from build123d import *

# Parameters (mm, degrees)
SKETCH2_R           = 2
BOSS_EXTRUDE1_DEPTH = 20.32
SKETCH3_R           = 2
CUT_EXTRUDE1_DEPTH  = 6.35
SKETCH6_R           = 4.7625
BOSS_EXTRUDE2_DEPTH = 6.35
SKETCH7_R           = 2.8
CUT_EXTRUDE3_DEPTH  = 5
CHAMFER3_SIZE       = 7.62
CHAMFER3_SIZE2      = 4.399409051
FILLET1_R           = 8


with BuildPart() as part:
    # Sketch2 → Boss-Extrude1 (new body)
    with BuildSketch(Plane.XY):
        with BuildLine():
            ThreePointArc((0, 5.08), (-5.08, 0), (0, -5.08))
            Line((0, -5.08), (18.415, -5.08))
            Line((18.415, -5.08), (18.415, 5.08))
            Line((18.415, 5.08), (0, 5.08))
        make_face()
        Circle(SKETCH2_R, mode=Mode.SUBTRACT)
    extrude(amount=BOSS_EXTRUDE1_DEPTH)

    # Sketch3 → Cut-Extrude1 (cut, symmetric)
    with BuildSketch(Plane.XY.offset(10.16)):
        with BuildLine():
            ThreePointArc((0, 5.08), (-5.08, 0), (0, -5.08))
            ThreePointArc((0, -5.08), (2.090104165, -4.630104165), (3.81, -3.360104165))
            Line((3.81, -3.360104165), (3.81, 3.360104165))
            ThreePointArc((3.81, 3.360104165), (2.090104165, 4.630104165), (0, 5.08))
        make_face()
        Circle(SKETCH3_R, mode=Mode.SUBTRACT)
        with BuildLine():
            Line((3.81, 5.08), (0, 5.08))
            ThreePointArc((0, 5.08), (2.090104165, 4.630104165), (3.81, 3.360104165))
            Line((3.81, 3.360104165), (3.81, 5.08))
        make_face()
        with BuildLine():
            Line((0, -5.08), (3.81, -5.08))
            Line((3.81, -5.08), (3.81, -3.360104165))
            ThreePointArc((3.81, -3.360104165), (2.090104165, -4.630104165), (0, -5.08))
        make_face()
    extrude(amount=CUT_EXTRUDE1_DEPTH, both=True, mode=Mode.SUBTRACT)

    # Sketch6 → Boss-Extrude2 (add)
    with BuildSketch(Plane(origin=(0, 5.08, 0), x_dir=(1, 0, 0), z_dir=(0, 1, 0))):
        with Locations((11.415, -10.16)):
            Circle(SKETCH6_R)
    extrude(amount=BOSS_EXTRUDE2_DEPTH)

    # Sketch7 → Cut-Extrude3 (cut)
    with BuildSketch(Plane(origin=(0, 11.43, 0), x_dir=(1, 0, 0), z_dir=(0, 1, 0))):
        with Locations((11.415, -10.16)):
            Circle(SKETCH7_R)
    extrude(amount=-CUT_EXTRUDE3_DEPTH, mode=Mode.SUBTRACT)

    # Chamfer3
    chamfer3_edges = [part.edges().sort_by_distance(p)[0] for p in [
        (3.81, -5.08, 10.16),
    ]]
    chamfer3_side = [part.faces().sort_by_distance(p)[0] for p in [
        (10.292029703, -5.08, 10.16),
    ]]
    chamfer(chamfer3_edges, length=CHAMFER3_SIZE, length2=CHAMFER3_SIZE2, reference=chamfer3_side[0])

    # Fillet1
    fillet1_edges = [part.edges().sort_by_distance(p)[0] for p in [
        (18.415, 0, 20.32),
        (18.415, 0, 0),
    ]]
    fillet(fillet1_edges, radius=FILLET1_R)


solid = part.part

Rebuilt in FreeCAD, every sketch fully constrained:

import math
import FreeCAD as App
import Part
import Sketcher
Q = App.Units.Quantity


def edges_at(feature, points):
    """Names of the edges that pass closest to the given points."""
    edges = feature.Shape.Edges
    near = lambda p: min(range(len(edges)), key=lambda i: edges[i].distToShape(Part.Vertex(*p))[0])
    return sorted({f"Edge{near(p) + 1}" for p in points})

doc = App.newDocument("Part")
body = doc.addObject("PartDesign::Body", "Body")

# Sketch on XY plane
sketch1 = doc.addObject("Sketcher::SketchObject", "Sketch")
body.addObject(sketch1)
sketch1.AttachmentSupport = (doc.XY_Plane, [""])
sketch1.MapMode = "FlatFace"
sketch1.addGeometry([
    Part.ArcOfCircle(Part.Circle(App.Vector(0, 0, 0), App.Vector(0, 0, 1), 5.1), math.radians(90), math.radians(270)),  # 0
    Part.LineSegment(App.Vector(0, -5.1, 0), App.Vector(18.4, -5.1, 0)),  # 1
    Part.LineSegment(App.Vector(18.4, -5.1, 0), App.Vector(18.4, 5.1, 0)),  # 2
    Part.LineSegment(App.Vector(18.4, 5.1, 0), App.Vector(0, 5.1, 0)),  # 3
    Part.Circle(App.Vector(0, 0, 0), App.Vector(0, 0, 1), 2),  # 4
], False)
sketch1.addConstraint([
    Sketcher.Constraint("Tangent", 0, 2, 1, 1),
    Sketcher.Constraint("Coincident", 1, 2, 2, 1),
    Sketcher.Constraint("Coincident", 2, 2, 3, 1),
    Sketcher.Constraint("Tangent", 3, 2, 0, 1),
    Sketcher.Constraint("Horizontal", 1),
    Sketcher.Constraint("Vertical", 2),
    Sketcher.Constraint("Horizontal", 3),
    Sketcher.Constraint("Coincident", 0, 3, -1, 1),
    Sketcher.Constraint("Coincident", 4, 3, -1, 1),
    Sketcher.Constraint("Radius", 0, Q("0.2 in")),
    Sketcher.Constraint("Diameter", 4, 4.0),
    Sketcher.Constraint("DistanceX", 1, 1, 1, 2, Q("0.725 in")),
])
pad1 = doc.addObject("PartDesign::Pad", "Pad")
body.addObject(pad1)
pad1.Profile = sketch1
pad1.Length = Q("0.8 in")

# Sketch on XY plane
sketch2 = doc.addObject("Sketcher::SketchObject", "Sketch001")
body.addObject(sketch2)
sketch2.AttachmentSupport = (doc.XY_Plane, [""])
sketch2.MapMode = "FlatFace"
sketch2.AttachmentOffset = App.Placement(App.Vector(0, 0, 0.4 * 25.4), App.Rotation())
sketch2.addGeometry([
    Part.ArcOfCircle(Part.Circle(App.Vector(0, 0, 0), App.Vector(0, 0, 1), 5.1), math.radians(90), math.radians(270)),  # 0
    Part.LineSegment(App.Vector(0, -5.1, 0), App.Vector(3.8, -5.1, 0)),  # 1
    Part.LineSegment(App.Vector(3.8, -5.1, 0), App.Vector(3.8, 5.1, 0)),  # 2
    Part.LineSegment(App.Vector(3.8, 5.1, 0), App.Vector(0, 5.1, 0)),  # 3
    Part.Circle(App.Vector(0, 0, 0), App.Vector(0, 0, 1), 2),  # 4
], False)
sketch2.addConstraint([
    Sketcher.Constraint("Tangent", 0, 2, 1, 1),
    Sketcher.Constraint("Coincident", 1, 2, 2, 1),
    Sketcher.Constraint("Coincident", 2, 2, 3, 1),
    Sketcher.Constraint("Tangent", 3, 2, 0, 1),
    Sketcher.Constraint("Horizontal", 1),
    Sketcher.Constraint("Vertical", 2),
    Sketcher.Constraint("Horizontal", 3),
    Sketcher.Constraint("Coincident", 0, 3, -1, 1),
    Sketcher.Constraint("Coincident", 4, 3, -1, 1),
    Sketcher.Constraint("Radius", 0, Q("0.2 in")),
    Sketcher.Constraint("DistanceX", 1, 1, 1, 2, Q("0.15 in")),
    Sketcher.Constraint("Diameter", 4, 4.0),
])
pocket1 = doc.addObject("PartDesign::Pocket", "Pocket")
body.addObject(pocket1)
pocket1.Profile = sketch2
pocket1.Length = Q("0.5 in")
pocket1.Midplane = True

# Sketch on XZ plane
sketch3 = doc.addObject("Sketcher::SketchObject", "Sketch002")
body.addObject(sketch3)
sketch3.AttachmentSupport = (doc.XZ_Plane, [""])
sketch3.MapMode = "FlatFace"
sketch3.AttachmentOffset = App.Placement(App.Vector(0, 0, -0.2 * 25.4), App.Rotation())
sketch3.addGeometry(Part.Circle(App.Vector(11.4, 10.2, 0), App.Vector(0, 0, 1), 4.8), False)
sketch3.addConstraint([
    Sketcher.Constraint("Diameter", 0, Q("0.375 in")),
    Sketcher.Constraint("DistanceY", -1, 1, 0, 3, Q("0.4 in")),
    Sketcher.Constraint("DistanceX", -1, 1, 0, 3, 11.415),
])
pad2 = doc.addObject("PartDesign::Pad", "Pad001")
body.addObject(pad2)
pad2.Profile = sketch3
pad2.Length = Q("0.25 in")
pad2.Reversed = True

# Sketch on XZ plane
sketch4 = doc.addObject("Sketcher::SketchObject", "Sketch003")
body.addObject(sketch4)
sketch4.AttachmentSupport = (doc.XZ_Plane, [""])
sketch4.MapMode = "FlatFace"
sketch4.AttachmentOffset = App.Placement(App.Vector(0, 0, -0.45 * 25.4), App.Rotation())
sketch4.addGeometry(Part.Circle(App.Vector(11.4, 10.2, 0), App.Vector(0, 0, 1), 2.8), False)
sketch4.addConstraint([
    Sketcher.Constraint("DistanceY", -1, 1, 0, 3, Q("0.4 in")),
    Sketcher.Constraint("Diameter", 0, 5.6),
    Sketcher.Constraint("DistanceX", -1, 1, 0, 3, 11.415),
])
pocket2 = doc.addObject("PartDesign::Pocket", "Pocket001")
body.addObject(pocket2)
pocket2.Profile = sketch4
pocket2.Length = 5
pocket2.Reversed = True
doc.recompute()

chamfer = doc.addObject("PartDesign::Chamfer", "Chamfer")
body.addObject(chamfer)
chamfer.Base = (pocket2, edges_at(pocket2, [(3.81, -5.08, 10.16)]))
chamfer.ChamferType = "Two distances"
chamfer.Size = Q("0.3 in")
chamfer.Size2 = 4.399409
doc.recompute()

fillet = doc.addObject("PartDesign::Fillet", "Fillet")
body.addObject(fillet)
fillet.Base = (chamfer, edges_at(chamfer, [(18.415, 0, 20.32), (18.415, 0, 0)]))
fillet.Radius = 8

doc.recompute()
